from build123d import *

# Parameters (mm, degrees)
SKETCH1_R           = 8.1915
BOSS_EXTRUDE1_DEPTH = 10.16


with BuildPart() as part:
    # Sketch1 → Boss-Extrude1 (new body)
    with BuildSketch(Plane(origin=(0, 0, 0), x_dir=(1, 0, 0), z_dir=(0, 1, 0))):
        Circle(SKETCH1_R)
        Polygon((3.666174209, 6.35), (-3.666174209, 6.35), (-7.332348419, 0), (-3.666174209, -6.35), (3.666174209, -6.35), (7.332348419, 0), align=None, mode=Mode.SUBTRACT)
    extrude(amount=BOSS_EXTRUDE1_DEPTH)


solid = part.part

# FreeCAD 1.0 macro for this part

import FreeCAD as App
import Part
import Sketcher
Q = App.Units.Quantity


def add_polygon(sketch, points):
    """Adds a closed chain of lines whose ends are joined by coincident constraints."""
    first, n = sketch.GeometryCount, len(points)
    for a, b in zip(points, points[1:] + points[:1]):
        sketch.addGeometry(Part.LineSegment(App.Vector(*a, 0), App.Vector(*b, 0)), False)
    for i in range(n):
        sketch.addConstraint(Sketcher.Constraint("Coincident", first + i, 2, first + (i + 1) % n, 1))

doc = App.newDocument("Part")
params = doc.addObject("Spreadsheet::Sheet", "Params")
for row, (alias, value) in enumerate([
    ("sketch1_diameter", "0.645 in"),
    ("pad1_length", "0.4 in"),
], start=1):
    params.set(f"A{row}", alias)
    params.set(f"B{row}", "=" + value)
    params.setAlias(f"B{row}", alias)

body = doc.addObject("PartDesign::Body", "Body")

# Sketch on XZ plane
sketch1 = body.newObject("Sketcher::SketchObject", "Sketch")
sketch1.AttachmentSupport = (doc.getObject("XZ_Plane"), [""])
sketch1.MapMode = "FlatFace"
sketch1.addGeometry(Part.Circle(App.Vector(0, 0, 0), App.Vector(0, 0, 1), 8), False)  # 0
add_polygon(sketch1, [(-4, -6), (4, -6), (7, 0), (4, 6), (-4, 6), (-7, 0)])  # lines 1-6
sketch1.addConstraint([
    Sketcher.Constraint("Horizontal", 1),
    Sketcher.Constraint("Horizontal", 4),
    Sketcher.Constraint("Coincident", 0, 3, -1, 1),
    Sketcher.Constraint("Symmetric", 1, 2, 4, 2, -1, 1),
    Sketcher.Constraint("Symmetric", 2, 2, 5, 2, -1, 1),
    Sketcher.Constraint("PointOnObject", 2, 2, -1),
    Sketcher.Constraint("Parallel", 3, 6),
    Sketcher.Constraint("Vertical", 1, 2, 3, 2),
    Sketcher.Constraint("Diameter", 0, Q("0.645 in")),
    Sketcher.Constraint("Angle", 2, Q("60 deg")),
    Sketcher.Constraint("DistanceY", 1, 2, 3, 2, Q("0.5 in")),
    Sketcher.Constraint("DistanceX", 1, 1, 1, 2, 7.332348),
])
sketch1.setExpression("Constraints[14]", "Params.sketch1_diameter")
pad1 = body.newObject("PartDesign::Pad", "Pad")
pad1.Profile = sketch1
pad1.setExpression("Length", "Params.pad1_length")
pad1.Reversed = True

doc.recompute()
